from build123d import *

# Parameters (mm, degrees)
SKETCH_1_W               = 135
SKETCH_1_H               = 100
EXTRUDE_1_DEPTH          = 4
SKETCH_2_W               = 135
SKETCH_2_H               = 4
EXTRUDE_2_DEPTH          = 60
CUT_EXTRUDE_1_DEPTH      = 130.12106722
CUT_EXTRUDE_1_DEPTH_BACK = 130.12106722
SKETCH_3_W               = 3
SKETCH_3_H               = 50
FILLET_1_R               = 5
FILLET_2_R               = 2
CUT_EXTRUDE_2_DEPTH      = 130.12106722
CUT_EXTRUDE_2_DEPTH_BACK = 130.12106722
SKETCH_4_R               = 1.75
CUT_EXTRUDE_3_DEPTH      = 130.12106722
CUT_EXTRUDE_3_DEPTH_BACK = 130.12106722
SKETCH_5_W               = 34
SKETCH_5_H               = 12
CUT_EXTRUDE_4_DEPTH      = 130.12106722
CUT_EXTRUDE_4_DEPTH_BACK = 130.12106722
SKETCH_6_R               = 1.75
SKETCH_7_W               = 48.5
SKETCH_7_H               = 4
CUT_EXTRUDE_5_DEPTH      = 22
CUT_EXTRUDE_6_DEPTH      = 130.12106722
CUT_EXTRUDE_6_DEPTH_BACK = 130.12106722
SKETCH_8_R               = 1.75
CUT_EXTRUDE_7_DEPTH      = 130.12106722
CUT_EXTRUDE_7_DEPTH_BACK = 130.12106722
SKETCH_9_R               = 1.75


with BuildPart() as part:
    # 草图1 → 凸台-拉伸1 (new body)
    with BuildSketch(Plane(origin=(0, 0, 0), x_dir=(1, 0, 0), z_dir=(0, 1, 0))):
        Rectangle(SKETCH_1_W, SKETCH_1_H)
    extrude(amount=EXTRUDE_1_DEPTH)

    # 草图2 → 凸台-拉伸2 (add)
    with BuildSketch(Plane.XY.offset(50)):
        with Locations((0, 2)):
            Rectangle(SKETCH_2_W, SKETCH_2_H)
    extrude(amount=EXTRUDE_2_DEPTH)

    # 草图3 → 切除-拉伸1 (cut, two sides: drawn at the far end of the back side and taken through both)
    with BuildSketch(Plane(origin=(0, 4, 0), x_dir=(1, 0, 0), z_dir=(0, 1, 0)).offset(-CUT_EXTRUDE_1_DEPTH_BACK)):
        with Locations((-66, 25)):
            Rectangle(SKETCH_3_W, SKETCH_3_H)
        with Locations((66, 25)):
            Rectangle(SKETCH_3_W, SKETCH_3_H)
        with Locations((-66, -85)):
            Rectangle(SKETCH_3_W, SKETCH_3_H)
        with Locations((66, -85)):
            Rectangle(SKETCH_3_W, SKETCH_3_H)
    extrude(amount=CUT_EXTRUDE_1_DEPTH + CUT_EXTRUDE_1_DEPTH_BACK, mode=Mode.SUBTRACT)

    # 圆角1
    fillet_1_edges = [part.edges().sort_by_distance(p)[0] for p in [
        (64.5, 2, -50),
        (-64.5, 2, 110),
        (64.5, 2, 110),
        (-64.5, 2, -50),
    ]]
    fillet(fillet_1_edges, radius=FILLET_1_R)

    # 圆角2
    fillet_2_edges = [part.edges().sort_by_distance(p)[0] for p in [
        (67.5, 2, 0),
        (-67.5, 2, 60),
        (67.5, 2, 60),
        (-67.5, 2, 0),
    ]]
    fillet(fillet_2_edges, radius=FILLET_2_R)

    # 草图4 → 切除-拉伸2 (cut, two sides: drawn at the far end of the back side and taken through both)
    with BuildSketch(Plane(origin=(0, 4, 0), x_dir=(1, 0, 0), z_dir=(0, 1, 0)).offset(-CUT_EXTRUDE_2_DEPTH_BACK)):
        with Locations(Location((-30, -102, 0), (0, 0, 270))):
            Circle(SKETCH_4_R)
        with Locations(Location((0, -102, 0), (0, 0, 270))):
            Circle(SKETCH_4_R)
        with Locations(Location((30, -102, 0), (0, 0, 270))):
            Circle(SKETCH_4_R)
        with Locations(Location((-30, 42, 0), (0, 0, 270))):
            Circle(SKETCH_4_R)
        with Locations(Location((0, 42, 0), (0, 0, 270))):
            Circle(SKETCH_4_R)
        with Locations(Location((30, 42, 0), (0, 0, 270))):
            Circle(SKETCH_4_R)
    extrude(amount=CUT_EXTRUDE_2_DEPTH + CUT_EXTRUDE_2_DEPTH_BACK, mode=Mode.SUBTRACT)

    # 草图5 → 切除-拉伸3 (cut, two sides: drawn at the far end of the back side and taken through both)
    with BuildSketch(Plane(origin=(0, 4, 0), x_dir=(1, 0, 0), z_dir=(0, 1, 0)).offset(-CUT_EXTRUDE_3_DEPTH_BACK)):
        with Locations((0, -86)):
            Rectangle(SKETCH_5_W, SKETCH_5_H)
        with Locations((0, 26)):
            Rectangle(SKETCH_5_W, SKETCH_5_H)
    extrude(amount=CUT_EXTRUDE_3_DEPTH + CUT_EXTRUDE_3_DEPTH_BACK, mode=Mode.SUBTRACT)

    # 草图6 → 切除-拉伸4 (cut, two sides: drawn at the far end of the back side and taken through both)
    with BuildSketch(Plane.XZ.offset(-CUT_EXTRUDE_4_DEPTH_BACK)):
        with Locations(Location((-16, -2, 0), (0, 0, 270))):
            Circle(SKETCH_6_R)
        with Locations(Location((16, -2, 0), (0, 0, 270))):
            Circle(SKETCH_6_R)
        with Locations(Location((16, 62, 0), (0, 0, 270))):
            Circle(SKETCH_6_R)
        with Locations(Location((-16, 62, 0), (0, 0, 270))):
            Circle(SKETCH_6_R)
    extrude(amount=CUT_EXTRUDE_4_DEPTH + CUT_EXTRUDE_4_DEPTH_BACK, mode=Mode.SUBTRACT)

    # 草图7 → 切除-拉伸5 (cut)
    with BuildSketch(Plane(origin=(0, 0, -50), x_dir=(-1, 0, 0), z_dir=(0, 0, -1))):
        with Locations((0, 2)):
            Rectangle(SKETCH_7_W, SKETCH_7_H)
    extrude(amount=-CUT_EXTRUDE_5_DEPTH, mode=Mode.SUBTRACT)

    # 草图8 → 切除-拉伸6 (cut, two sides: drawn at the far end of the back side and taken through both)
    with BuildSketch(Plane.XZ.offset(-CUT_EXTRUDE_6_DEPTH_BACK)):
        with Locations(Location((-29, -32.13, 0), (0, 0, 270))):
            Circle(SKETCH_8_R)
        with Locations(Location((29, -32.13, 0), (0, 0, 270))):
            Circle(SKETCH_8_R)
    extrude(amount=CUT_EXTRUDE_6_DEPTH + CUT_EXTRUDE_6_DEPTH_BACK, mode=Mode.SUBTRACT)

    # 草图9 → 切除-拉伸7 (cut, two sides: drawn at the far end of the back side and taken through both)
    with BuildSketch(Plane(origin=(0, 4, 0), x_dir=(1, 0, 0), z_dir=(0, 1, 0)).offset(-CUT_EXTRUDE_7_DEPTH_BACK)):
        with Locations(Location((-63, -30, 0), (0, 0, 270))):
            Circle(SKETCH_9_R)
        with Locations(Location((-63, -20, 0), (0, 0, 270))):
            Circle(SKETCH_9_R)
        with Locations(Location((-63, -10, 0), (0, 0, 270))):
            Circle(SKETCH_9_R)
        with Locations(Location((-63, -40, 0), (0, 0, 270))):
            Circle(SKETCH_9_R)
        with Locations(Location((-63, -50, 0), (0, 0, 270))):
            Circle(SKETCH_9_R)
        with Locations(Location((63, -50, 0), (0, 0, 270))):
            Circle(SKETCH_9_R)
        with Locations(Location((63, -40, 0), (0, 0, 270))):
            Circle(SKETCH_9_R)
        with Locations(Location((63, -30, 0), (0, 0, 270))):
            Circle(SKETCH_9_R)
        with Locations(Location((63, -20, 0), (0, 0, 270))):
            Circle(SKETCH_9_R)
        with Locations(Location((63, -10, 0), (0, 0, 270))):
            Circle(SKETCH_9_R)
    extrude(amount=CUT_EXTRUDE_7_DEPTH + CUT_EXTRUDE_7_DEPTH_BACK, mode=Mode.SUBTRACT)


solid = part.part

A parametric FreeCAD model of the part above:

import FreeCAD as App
import Part
import Sketcher
Q = App.Units.Quantity


def edges_at(feature, points):
    """Names of the edges that pass closest to the given points."""
    edges = feature.Shape.Edges
    near = lambda p: min(range(len(edges)), key=lambda i: edges[i].distToShape(Part.Vertex(*p))[0])
    return sorted({f"Edge{near(p) + 1}" for p in points})


def add_polygon(sketch, points):
    """Adds a closed chain of lines whose ends are joined by coincident constraints."""
    first, n = sketch.GeometryCount, len(points)
    for a, b in zip(points, points[1:] + points[:1]):
        sketch.addGeometry(Part.LineSegment(App.Vector(*a, 0), App.Vector(*b, 0)), False)
    for i in range(n):
        sketch.addConstraint(Sketcher.Constraint("Coincident", first + i, 2, first + (i + 1) % n, 1))

doc = App.newDocument("Part")
body = doc.addObject("PartDesign::Body", "Body")

# Sketch on XZ plane
sketch1 = body.newObject("Sketcher::SketchObject", "Sketch")
sketch1.AttachmentSupport = (doc.getObject("XZ_Plane"), [""])
sketch1.MapMode = "FlatFace"
add_polygon(sketch1, [(-68, -50), (-68, 50), (68, 50), (68, -50)])  # lines 0-3
sketch1.addConstraint(Sketcher.Constraint("Vertical", 0))
sketch1.addConstraint(Sketcher.Constraint("Horizontal", 1))
sketch1.addConstraint(Sketcher.Constraint("Vertical", 2))
sketch1.addConstraint(Sketcher.Constraint("Horizontal", 3))
sketch1.addConstraint(Sketcher.Constraint("Symmetric", 0, 2, 2, 2, -1, 1))
sketch1.addConstraint(Sketcher.Constraint("DistanceX", 1, 1, 1, 2, Q("135 mm")))
sketch1.addConstraint(Sketcher.Constraint("DistanceY", 0, 1, 0, 2, Q("100 mm")))
pad1 = body.newObject("PartDesign::Pad", "Pad")
pad1.Profile = sketch1
pad1.Length = 4
pad1.Reversed = True

# Sketch on XY plane
sketch2 = body.newObject("Sketcher::SketchObject", "Sketch001")
sketch2.AttachmentSupport = (doc.getObject("XY_Plane"), [""])
sketch2.MapMode = "FlatFace"
sketch2.AttachmentOffset = App.Placement(App.Vector(0, 0, 50), App.Rotation())
add_polygon(sketch2, [(-67.5, 4), (-67.5, 0), (67.5, 0), (67.5, 4)])  # lines 0-3
sketch2.addConstraint(Sketcher.Constraint("Vertical", 0))
sketch2.addConstraint(Sketcher.Constraint("Horizontal", 1))
sketch2.addConstraint(Sketcher.Constraint("Vertical", 2))
sketch2.addConstraint(Sketcher.Constraint("Horizontal", 3))
sketch2.addConstraint(Sketcher.Constraint("Symmetric", 0, 2, 1, 2, -1, 1))
sketch2.addConstraint(Sketcher.Constraint("DistanceX", 1, 1, 1, 2, Q("135 mm")))
sketch2.addConstraint(Sketcher.Constraint("DistanceY", 0, 2, 0, 1, Q("4 mm")))
pad2 = body.newObject("PartDesign::Pad", "Pad001")
pad2.Profile = sketch2
pad2.Length = 60

# Sketch on XZ plane
sketch3 = body.newObject("Sketcher::SketchObject", "Sketch002")
sketch3.AttachmentSupport = (doc.getObject("XZ_Plane"), [""])
sketch3.MapMode = "FlatFace"
sketch3.AttachmentOffset = App.Placement(App.Vector(0, 0, -4), App.Rotation())
add_polygon(sketch3, [(-67.5, -50), (-67.5, 0), (-64.5, 0), (-64.5, -50)])  # lines 0-3
add_polygon(sketch3, [(64.5, -50), (64.5, 0), (67.5, 0), (67.5, -50)])  # lines 4-7
add_polygon(sketch3, [(-67.5, 60), (-67.5, 110), (-64.5, 110), (-64.5, 60)])  # lines 8-11
add_polygon(sketch3, [(64.5, 60), (64.5, 110), (67.5, 110), (67.5, 60)])  # lines 12-15
sketch3.addConstraint(Sketcher.Constraint("Vertical", 0))
sketch3.addConstraint(Sketcher.Constraint("Horizontal", 1))
sketch3.addConstraint(Sketcher.Constraint("Vertical", 2))
sketch3.addConstraint(Sketcher.Constraint("Horizontal", 3))
sketch3.addConstraint(Sketcher.Constraint("Vertical", 4))
sketch3.addConstraint(Sketcher.Constraint("Horizontal", 5))
sketch3.addConstraint(Sketcher.Constraint("Vertical", 6))
sketch3.addConstraint(Sketcher.Constraint("Horizontal", 7))
sketch3.addConstraint(Sketcher.Constraint("Vertical", 8))
sketch3.addConstraint(Sketcher.Constraint("Horizontal", 9))
sketch3.addConstraint(Sketcher.Constraint("Vertical", 10))
sketch3.addConstraint(Sketcher.Constraint("Horizontal", 11))
sketch3.addConstraint(Sketcher.Constraint("Vertical", 12))
sketch3.addConstraint(Sketcher.Constraint("Horizontal", 13))
sketch3.addConstraint(Sketcher.Constraint("Vertical", 14))
sketch3.addConstraint(Sketcher.Constraint("Horizontal", 15))
sketch3.addConstraint(Sketcher.Constraint("Symmetric", 1, 2, 4, 2, -1, 1))
sketch3.addConstraint(Sketcher.Constraint("Symmetric", 0, 2, 5, 2, -2))
sketch3.addConstraint(Sketcher.Constraint("Symmetric", 9, 2, 12, 2, -2))
sketch3.addConstraint(Sketcher.Constraint("Symmetric", 11, 2, 14, 2, -2))
sketch3.addConstraint(Sketcher.Constraint("Horizontal", 3, 2, 6, 2))
sketch3.addConstraint(Sketcher.Constraint("Vertical", 3, 2, 8, 2))
sketch3.addConstraint(Sketcher.Constraint("Vertical", 2, 2, 9, 2))
sketch3.addConstraint(Sketcher.Constraint("Equal", 6, 8))
sketch3.addConstraint(Sketcher.Constraint("DistanceX", 1, 1, 1, 2, Q("3 mm")))
sketch3.addConstraint(Sketcher.Constraint("DistanceY", 0, 1, 0, 2, Q("50 mm")))
sketch3.addConstraint(Sketcher.Constraint("DistanceY", -1, 1, 8, 2, Q("110 mm")))
sketch3.addConstraint(Sketcher.Constraint("DistanceX", 1, 2, 4, 2, Q("129 mm")))
pocket1 = body.newObject("PartDesign::Pocket", "Pocket")
pocket1.Profile = sketch3
pocket1.Type = "ThroughAll"
pocket1.Midplane = True
doc.recompute()

fillet = body.newObject("PartDesign::Fillet", "Fillet")
fillet.Base = (pocket1, edges_at(pocket1, [
    (64.5, 2, -50),
    (-64.5, 2, 110),
    (64.5, 2, 110),
    (-64.5, 2, -50),
]))
fillet.Radius = 5
doc.recompute()

fillet2 = body.newObject("PartDesign::Fillet", "Fillet001")
fillet2.Base = (fillet, edges_at(fillet, [
    (67.5, 2, 0),
    (-67.5, 2, 60),
    (67.5, 2, 60),
    (-67.5, 2, 0),
]))
fillet2.Radius = 2

# Sketch on XZ plane
sketch4 = body.newObject("Sketcher::SketchObject", "Sketch003")
sketch4.AttachmentSupport = (doc.getObject("XZ_Plane"), [""])
sketch4.MapMode = "FlatFace"
sketch4.AttachmentOffset = App.Placement(App.Vector(0, 0, -4), App.Rotation())
sketch4.addGeometry(Part.Circle(App.Vector(-30, 102, 0), App.Vector(0, 0, 1), 1.8), False)
sketch4.addGeometry(Part.Circle(App.Vector(0, 102, 0), App.Vector(0, 0, 1), 1.8), False)
sketch4.addGeometry(Part.Circle(App.Vector(30, 102, 0), App.Vector(0, 0, 1), 1.8), False)
sketch4.addGeometry(Part.Circle(App.Vector(-30, -42, 0), App.Vector(0, 0, 1), 1.8), False)
sketch4.addGeometry(Part.Circle(App.Vector(0, -42, 0), App.Vector(0, 0, 1), 1.8), False)
sketch4.addGeometry(Part.Circle(App.Vector(30, -42, 0), App.Vector(0, 0, 1), 1.8), False)
sketch4.addConstraint(Sketcher.Constraint("Equal", 0, 1))
sketch4.addConstraint(Sketcher.Constraint("Equal", 1, 2))
sketch4.addConstraint(Sketcher.Constraint("Equal", 2, 3))
sketch4.addConstraint(Sketcher.Constraint("Equal", 3, 4))
sketch4.addConstraint(Sketcher.Constraint("Equal", 4, 5))
sketch4.addConstraint(Sketcher.Constraint("Symmetric", 0, 3, 2, 3, -2))
sketch4.addConstraint(Sketcher.Constraint("Symmetric", 3, 3, 5, 3, -2))
sketch4.addConstraint(Sketcher.Constraint("PointOnObject", 1, 3, -2))
sketch4.addConstraint(Sketcher.Constraint("PointOnObject", 4, 3, -2))
sketch4.addConstraint(Sketcher.Constraint("Horizontal", 0, 3, 1, 3))
sketch4.addConstraint(Sketcher.Constraint("Horizontal", 3, 3, 4, 3))
sketch4.addConstraint(Sketcher.Constraint("Vertical", 0, 3, 3, 3))
sketch4.addConstraint(Sketcher.Constraint("Diameter", 0, Q("3.5 mm")))
sketch4.addConstraint(Sketcher.Constraint("DistanceX", 0, 3, -1, 1, Q("30 mm")))
sketch4.addConstraint(Sketcher.Constraint("DistanceY", -1, 1, 0, 3, Q("102 mm")))
sketch4.addConstraint(Sketcher.Constraint("DistanceY", 3, 3, -1, 1, Q("42 mm")))
pocket2 = body.newObject("PartDesign::Pocket", "Pocket001")
pocket2.Profile = sketch4
pocket2.Type = "ThroughAll"
pocket2.Midplane = True

# Sketch on XZ plane
sketch5 = body.newObject("Sketcher::SketchObject", "Sketch004")
sketch5.AttachmentSupport = (doc.getObject("XZ_Plane"), [""])
sketch5.MapMode = "FlatFace"
sketch5.AttachmentOffset = App.Placement(App.Vector(0, 0, -4), App.Rotation())
add_polygon(sketch5, [(-17, 80), (-17, 92), (17, 92), (17, 80)])  # lines 0-3
add_polygon(sketch5, [(-17, -32), (-17, -20), (17, -20), (17, -32)])  # lines 4-7
sketch5.addConstraint(Sketcher.Constraint("Vertical", 0))
sketch5.addConstraint(Sketcher.Constraint("Horizontal", 1))
sketch5.addConstraint(Sketcher.Constraint("Vertical", 2))
sketch5.addConstraint(Sketcher.Constraint("Horizontal", 3))
sketch5.addConstraint(Sketcher.Constraint("Vertical", 4))
sketch5.addConstraint(Sketcher.Constraint("Horizontal", 5))
sketch5.addConstraint(Sketcher.Constraint("Vertical", 6))
sketch5.addConstraint(Sketcher.Constraint("Horizontal", 7))
sketch5.addConstraint(Sketcher.Constraint("Vertical", 3, 2, 4, 2))
sketch5.addConstraint(Sketcher.Constraint("Vertical", 2, 2, 5, 2))
sketch5.addConstraint(Sketcher.Constraint("Equal", 2, 4))
sketch5.addConstraint(Sketcher.Constraint("DistanceX", 1, 1, 1, 2, Q("34 mm")))
sketch5.addConstraint(Sketcher.Constraint("DistanceY", 0, 1, 0, 2, Q("12 mm")))
sketch5.addConstraint(Sketcher.Constraint("DistanceX", 0, 2, -1, 1, Q("17 mm")))
sketch5.addConstraint(Sketcher.Constraint("DistanceY", -1, 1, 0, 2, Q("92 mm")))
sketch5.addConstraint(Sketcher.Constraint("DistanceY", 4, 2, -1, 1, Q("20 mm")))
pocket3 = body.newObject("PartDesign::Pocket", "Pocket002")
pocket3.Profile = sketch5
pocket3.Type = "ThroughAll"
pocket3.Midplane = True

# Sketch on XZ plane
sketch6 = body.newObject("Sketcher::SketchObject", "Sketch005")
sketch6.AttachmentSupport = (doc.getObject("XZ_Plane"), [""])
sketch6.MapMode = "FlatFace"
sketch6.addGeometry(Part.Circle(App.Vector(-16, -2, 0), App.Vector(0, 0, 1), 1.8), False)
sketch6.addGeometry(Part.Circle(App.Vector(16, -2, 0), App.Vector(0, 0, 1), 1.8), False)
sketch6.addGeometry(Part.Circle(App.Vector(16, 62, 0), App.Vector(0, 0, 1), 1.8), False)
sketch6.addGeometry(Part.Circle(App.Vector(-16, 62, 0), App.Vector(0, 0, 1), 1.8), False)
sketch6.addConstraint(Sketcher.Constraint("Equal", 0, 1))
sketch6.addConstraint(Sketcher.Constraint("Equal", 1, 2))
sketch6.addConstraint(Sketcher.Constraint("Equal", 2, 3))
sketch6.addConstraint(Sketcher.Constraint("Symmetric", 0, 3, 1, 3, -2))
sketch6.addConstraint(Sketcher.Constraint("Symmetric", 2, 3, 3, 3, -2))
sketch6.addConstraint(Sketcher.Constraint("Vertical", 1, 3, 2, 3))
sketch6.addConstraint(Sketcher.Constraint("Diameter", 0, Q("3.5 mm")))
sketch6.addConstraint(Sketcher.Constraint("DistanceX", 0, 3, -1, 1, Q("16 mm")))
sketch6.addConstraint(Sketcher.Constraint("DistanceY", 0, 3, -1, 1, Q("2 mm")))
sketch6.addConstraint(Sketcher.Constraint("DistanceY", -1, 1, 2, 3, Q("62 mm")))
pocket4 = body.newObject("PartDesign::Pocket", "Pocket003")
pocket4.Profile = sketch6
pocket4.Type = "ThroughAll"
pocket4.Midplane = True

# Sketch on XY plane
sketch7 = body.newObject("Sketcher::SketchObject", "Sketch006")
sketch7.AttachmentSupport = (doc.getObject("XY_Plane"), [""])
sketch7.MapMode = "FlatFace"
sketch7.AttachmentOffset = App.Placement(App.Vector(0, 0, -50), App.Rotation())
add_polygon(sketch7, [(24.2, 4), (24.2, 0), (-24.2, 0), (-24.2, 4)])  # lines 0-3
sketch7.addConstraint(Sketcher.Constraint("Vertical", 0))
sketch7.addConstraint(Sketcher.Constraint("Horizontal", 1))
sketch7.addConstraint(Sketcher.Constraint("Vertical", 2))
sketch7.addConstraint(Sketcher.Constraint("Horizontal", 3))
sketch7.addConstraint(Sketcher.Constraint("Symmetric", 0, 2, 1, 2, -1, 1))
sketch7.addConstraint(Sketcher.Constraint("DistanceY", 0, 2, 0, 1, Q("4 mm")))
sketch7.addConstraint(Sketcher.Constraint("DistanceX", 1, 2, 1, 1, Q("48.5 mm")))
pocket5 = body.newObject("PartDesign::Pocket", "Pocket004")
pocket5.Profile = sketch7
pocket5.Length = 22
pocket5.Reversed = True

# Sketch on XZ plane
sketch8 = body.newObject("Sketcher::SketchObject", "Sketch007")
sketch8.AttachmentSupport = (doc.getObject("XZ_Plane"), [""])
sketch8.MapMode = "FlatFace"
sketch8.addGeometry(Part.Circle(App.Vector(-29, -32.1, 0), App.Vector(0, 0, 1), 1.8), False)
sketch8.addGeometry(Part.Circle(App.Vector(29, -32.1, 0), App.Vector(0, 0, 1), 1.8), False)
sketch8.addConstraint(Sketcher.Constraint("Equal", 0, 1))
sketch8.addConstraint(Sketcher.Constraint("Symmetric", 0, 3, 1, 3, -2))
sketch8.addConstraint(Sketcher.Constraint("Diameter", 0, Q("3.5 mm")))
sketch8.addConstraint(Sketcher.Constraint("DistanceX", 0, 3, -1, 1, Q("29 mm")))
sketch8.addConstraint(Sketcher.Constraint("DistanceY", 0, 3, -1, 1, Q("32.13 mm")))
pocket6 = body.newObject("PartDesign::Pocket", "Pocket005")
pocket6.Profile = sketch8
pocket6.Type = "ThroughAll"
pocket6.Midplane = True

# Sketch on XZ plane
sketch9 = body.newObject("Sketcher::SketchObject", "Sketch008")
sketch9.AttachmentSupport = (doc.getObject("XZ_Plane"), [""])
sketch9.MapMode = "FlatFace"
sketch9.AttachmentOffset = App.Placement(App.Vector(0, 0, -4), App.Rotation())
sketch9.addGeometry(Part.Circle(App.Vector(-63, 30, 0), App.Vector(0, 0, 1), 1.8), False)
sketch9.addGeometry(Part.Circle(App.Vector(-63, 20, 0), App.Vector(0, 0, 1), 1.8), False)
sketch9.addGeometry(Part.Circle(App.Vector(-63, 10, 0), App.Vector(0, 0, 1), 1.8), False)
sketch9.addGeometry(Part.Circle(App.Vector(-63, 40, 0), App.Vector(0, 0, 1), 1.8), False)
sketch9.addGeometry(Part.Circle(App.Vector(-63, 50, 0), App.Vector(0, 0, 1), 1.8), False)
sketch9.addGeometry(Part.Circle(App.Vector(63, 50, 0), App.Vector(0, 0, 1), 1.8), False)
sketch9.addGeometry(Part.Circle(App.Vector(63, 40, 0), App.Vector(0, 0, 1), 1.8), False)
sketch9.addGeometry(Part.Circle(App.Vector(63, 30, 0), App.Vector(0, 0, 1), 1.8), False)
sketch9.addGeometry(Part.Circle(App.Vector(63, 20, 0), App.Vector(0, 0, 1), 1.8), False)
sketch9.addGeometry(Part.Circle(App.Vector(63, 10, 0), App.Vector(0, 0, 1), 1.8), False)
sketch9.addConstraint(Sketcher.Constraint("Equal", 0, 1))
sketch9.addConstraint(Sketcher.Constraint("Equal", 1, 2))
sketch9.addConstraint(Sketcher.Constraint("Equal", 2, 3))
sketch9.addConstraint(Sketcher.Constraint("Equal", 3, 4))
sketch9.addConstraint(Sketcher.Constraint("Equal", 4, 5))
sketch9.addConstraint(Sketcher.Constraint("Equal", 5, 6))
sketch9.addConstraint(Sketcher.Constraint("Equal", 6, 7))
sketch9.addConstraint(Sketcher.Constraint("Equal", 7, 8))
sketch9.addConstraint(Sketcher.Constraint("Equal", 8, 9))
sketch9.addConstraint(Sketcher.Constraint("Symmetric", 4, 3, 5, 3, -2))
sketch9.addConstraint(Sketcher.Constraint("Symmetric", 3, 3, 6, 3, -2))
sketch9.addConstraint(Sketcher.Constraint("Symmetric", 0, 3, 7, 3, -2))
sketch9.addConstraint(Sketcher.Constraint("Symmetric", 1, 3, 8, 3, -2))
sketch9.addConstraint(Sketcher.Constraint("Symmetric", 2, 3, 9, 3, -2))
sketch9.addConstraint(Sketcher.Constraint("Vertical", 0, 3, 1, 3))
sketch9.addConstraint(Sketcher.Constraint("Vertical", 1, 3, 2, 3))
sketch9.addConstraint(Sketcher.Constraint("Vertical", 2, 3, 3, 3))
sketch9.addConstraint(Sketcher.Constraint("Vertical", 3, 3, 4, 3))
sketch9.addConstraint(Sketcher.Constraint("Diameter", 0, Q("3.5 mm")))
sketch9.addConstraint(Sketcher.Constraint("DistanceX", 0, 3, -1, 1, Q("63 mm")))
sketch9.addConstraint(Sketcher.Constraint("DistanceY", -1, 1, 0, 3, Q("30 mm")))
sketch9.addConstraint(Sketcher.Constraint("DistanceY", -1, 1, 1, 3, Q("20 mm")))
sketch9.addConstraint(Sketcher.Constraint("DistanceY", -1, 1, 2, 3, Q("10 mm")))
sketch9.addConstraint(Sketcher.Constraint("DistanceY", -1, 1, 3, 3, Q("40 mm")))
sketch9.addConstraint(Sketcher.Constraint("DistanceY", -1, 1, 4, 3, Q("50 mm")))
pocket7 = body.newObject("PartDesign::Pocket", "Pocket006")
pocket7.Profile = sketch9
pocket7.Type = "ThroughAll"
pocket7.Midplane = True

doc.recompute()
